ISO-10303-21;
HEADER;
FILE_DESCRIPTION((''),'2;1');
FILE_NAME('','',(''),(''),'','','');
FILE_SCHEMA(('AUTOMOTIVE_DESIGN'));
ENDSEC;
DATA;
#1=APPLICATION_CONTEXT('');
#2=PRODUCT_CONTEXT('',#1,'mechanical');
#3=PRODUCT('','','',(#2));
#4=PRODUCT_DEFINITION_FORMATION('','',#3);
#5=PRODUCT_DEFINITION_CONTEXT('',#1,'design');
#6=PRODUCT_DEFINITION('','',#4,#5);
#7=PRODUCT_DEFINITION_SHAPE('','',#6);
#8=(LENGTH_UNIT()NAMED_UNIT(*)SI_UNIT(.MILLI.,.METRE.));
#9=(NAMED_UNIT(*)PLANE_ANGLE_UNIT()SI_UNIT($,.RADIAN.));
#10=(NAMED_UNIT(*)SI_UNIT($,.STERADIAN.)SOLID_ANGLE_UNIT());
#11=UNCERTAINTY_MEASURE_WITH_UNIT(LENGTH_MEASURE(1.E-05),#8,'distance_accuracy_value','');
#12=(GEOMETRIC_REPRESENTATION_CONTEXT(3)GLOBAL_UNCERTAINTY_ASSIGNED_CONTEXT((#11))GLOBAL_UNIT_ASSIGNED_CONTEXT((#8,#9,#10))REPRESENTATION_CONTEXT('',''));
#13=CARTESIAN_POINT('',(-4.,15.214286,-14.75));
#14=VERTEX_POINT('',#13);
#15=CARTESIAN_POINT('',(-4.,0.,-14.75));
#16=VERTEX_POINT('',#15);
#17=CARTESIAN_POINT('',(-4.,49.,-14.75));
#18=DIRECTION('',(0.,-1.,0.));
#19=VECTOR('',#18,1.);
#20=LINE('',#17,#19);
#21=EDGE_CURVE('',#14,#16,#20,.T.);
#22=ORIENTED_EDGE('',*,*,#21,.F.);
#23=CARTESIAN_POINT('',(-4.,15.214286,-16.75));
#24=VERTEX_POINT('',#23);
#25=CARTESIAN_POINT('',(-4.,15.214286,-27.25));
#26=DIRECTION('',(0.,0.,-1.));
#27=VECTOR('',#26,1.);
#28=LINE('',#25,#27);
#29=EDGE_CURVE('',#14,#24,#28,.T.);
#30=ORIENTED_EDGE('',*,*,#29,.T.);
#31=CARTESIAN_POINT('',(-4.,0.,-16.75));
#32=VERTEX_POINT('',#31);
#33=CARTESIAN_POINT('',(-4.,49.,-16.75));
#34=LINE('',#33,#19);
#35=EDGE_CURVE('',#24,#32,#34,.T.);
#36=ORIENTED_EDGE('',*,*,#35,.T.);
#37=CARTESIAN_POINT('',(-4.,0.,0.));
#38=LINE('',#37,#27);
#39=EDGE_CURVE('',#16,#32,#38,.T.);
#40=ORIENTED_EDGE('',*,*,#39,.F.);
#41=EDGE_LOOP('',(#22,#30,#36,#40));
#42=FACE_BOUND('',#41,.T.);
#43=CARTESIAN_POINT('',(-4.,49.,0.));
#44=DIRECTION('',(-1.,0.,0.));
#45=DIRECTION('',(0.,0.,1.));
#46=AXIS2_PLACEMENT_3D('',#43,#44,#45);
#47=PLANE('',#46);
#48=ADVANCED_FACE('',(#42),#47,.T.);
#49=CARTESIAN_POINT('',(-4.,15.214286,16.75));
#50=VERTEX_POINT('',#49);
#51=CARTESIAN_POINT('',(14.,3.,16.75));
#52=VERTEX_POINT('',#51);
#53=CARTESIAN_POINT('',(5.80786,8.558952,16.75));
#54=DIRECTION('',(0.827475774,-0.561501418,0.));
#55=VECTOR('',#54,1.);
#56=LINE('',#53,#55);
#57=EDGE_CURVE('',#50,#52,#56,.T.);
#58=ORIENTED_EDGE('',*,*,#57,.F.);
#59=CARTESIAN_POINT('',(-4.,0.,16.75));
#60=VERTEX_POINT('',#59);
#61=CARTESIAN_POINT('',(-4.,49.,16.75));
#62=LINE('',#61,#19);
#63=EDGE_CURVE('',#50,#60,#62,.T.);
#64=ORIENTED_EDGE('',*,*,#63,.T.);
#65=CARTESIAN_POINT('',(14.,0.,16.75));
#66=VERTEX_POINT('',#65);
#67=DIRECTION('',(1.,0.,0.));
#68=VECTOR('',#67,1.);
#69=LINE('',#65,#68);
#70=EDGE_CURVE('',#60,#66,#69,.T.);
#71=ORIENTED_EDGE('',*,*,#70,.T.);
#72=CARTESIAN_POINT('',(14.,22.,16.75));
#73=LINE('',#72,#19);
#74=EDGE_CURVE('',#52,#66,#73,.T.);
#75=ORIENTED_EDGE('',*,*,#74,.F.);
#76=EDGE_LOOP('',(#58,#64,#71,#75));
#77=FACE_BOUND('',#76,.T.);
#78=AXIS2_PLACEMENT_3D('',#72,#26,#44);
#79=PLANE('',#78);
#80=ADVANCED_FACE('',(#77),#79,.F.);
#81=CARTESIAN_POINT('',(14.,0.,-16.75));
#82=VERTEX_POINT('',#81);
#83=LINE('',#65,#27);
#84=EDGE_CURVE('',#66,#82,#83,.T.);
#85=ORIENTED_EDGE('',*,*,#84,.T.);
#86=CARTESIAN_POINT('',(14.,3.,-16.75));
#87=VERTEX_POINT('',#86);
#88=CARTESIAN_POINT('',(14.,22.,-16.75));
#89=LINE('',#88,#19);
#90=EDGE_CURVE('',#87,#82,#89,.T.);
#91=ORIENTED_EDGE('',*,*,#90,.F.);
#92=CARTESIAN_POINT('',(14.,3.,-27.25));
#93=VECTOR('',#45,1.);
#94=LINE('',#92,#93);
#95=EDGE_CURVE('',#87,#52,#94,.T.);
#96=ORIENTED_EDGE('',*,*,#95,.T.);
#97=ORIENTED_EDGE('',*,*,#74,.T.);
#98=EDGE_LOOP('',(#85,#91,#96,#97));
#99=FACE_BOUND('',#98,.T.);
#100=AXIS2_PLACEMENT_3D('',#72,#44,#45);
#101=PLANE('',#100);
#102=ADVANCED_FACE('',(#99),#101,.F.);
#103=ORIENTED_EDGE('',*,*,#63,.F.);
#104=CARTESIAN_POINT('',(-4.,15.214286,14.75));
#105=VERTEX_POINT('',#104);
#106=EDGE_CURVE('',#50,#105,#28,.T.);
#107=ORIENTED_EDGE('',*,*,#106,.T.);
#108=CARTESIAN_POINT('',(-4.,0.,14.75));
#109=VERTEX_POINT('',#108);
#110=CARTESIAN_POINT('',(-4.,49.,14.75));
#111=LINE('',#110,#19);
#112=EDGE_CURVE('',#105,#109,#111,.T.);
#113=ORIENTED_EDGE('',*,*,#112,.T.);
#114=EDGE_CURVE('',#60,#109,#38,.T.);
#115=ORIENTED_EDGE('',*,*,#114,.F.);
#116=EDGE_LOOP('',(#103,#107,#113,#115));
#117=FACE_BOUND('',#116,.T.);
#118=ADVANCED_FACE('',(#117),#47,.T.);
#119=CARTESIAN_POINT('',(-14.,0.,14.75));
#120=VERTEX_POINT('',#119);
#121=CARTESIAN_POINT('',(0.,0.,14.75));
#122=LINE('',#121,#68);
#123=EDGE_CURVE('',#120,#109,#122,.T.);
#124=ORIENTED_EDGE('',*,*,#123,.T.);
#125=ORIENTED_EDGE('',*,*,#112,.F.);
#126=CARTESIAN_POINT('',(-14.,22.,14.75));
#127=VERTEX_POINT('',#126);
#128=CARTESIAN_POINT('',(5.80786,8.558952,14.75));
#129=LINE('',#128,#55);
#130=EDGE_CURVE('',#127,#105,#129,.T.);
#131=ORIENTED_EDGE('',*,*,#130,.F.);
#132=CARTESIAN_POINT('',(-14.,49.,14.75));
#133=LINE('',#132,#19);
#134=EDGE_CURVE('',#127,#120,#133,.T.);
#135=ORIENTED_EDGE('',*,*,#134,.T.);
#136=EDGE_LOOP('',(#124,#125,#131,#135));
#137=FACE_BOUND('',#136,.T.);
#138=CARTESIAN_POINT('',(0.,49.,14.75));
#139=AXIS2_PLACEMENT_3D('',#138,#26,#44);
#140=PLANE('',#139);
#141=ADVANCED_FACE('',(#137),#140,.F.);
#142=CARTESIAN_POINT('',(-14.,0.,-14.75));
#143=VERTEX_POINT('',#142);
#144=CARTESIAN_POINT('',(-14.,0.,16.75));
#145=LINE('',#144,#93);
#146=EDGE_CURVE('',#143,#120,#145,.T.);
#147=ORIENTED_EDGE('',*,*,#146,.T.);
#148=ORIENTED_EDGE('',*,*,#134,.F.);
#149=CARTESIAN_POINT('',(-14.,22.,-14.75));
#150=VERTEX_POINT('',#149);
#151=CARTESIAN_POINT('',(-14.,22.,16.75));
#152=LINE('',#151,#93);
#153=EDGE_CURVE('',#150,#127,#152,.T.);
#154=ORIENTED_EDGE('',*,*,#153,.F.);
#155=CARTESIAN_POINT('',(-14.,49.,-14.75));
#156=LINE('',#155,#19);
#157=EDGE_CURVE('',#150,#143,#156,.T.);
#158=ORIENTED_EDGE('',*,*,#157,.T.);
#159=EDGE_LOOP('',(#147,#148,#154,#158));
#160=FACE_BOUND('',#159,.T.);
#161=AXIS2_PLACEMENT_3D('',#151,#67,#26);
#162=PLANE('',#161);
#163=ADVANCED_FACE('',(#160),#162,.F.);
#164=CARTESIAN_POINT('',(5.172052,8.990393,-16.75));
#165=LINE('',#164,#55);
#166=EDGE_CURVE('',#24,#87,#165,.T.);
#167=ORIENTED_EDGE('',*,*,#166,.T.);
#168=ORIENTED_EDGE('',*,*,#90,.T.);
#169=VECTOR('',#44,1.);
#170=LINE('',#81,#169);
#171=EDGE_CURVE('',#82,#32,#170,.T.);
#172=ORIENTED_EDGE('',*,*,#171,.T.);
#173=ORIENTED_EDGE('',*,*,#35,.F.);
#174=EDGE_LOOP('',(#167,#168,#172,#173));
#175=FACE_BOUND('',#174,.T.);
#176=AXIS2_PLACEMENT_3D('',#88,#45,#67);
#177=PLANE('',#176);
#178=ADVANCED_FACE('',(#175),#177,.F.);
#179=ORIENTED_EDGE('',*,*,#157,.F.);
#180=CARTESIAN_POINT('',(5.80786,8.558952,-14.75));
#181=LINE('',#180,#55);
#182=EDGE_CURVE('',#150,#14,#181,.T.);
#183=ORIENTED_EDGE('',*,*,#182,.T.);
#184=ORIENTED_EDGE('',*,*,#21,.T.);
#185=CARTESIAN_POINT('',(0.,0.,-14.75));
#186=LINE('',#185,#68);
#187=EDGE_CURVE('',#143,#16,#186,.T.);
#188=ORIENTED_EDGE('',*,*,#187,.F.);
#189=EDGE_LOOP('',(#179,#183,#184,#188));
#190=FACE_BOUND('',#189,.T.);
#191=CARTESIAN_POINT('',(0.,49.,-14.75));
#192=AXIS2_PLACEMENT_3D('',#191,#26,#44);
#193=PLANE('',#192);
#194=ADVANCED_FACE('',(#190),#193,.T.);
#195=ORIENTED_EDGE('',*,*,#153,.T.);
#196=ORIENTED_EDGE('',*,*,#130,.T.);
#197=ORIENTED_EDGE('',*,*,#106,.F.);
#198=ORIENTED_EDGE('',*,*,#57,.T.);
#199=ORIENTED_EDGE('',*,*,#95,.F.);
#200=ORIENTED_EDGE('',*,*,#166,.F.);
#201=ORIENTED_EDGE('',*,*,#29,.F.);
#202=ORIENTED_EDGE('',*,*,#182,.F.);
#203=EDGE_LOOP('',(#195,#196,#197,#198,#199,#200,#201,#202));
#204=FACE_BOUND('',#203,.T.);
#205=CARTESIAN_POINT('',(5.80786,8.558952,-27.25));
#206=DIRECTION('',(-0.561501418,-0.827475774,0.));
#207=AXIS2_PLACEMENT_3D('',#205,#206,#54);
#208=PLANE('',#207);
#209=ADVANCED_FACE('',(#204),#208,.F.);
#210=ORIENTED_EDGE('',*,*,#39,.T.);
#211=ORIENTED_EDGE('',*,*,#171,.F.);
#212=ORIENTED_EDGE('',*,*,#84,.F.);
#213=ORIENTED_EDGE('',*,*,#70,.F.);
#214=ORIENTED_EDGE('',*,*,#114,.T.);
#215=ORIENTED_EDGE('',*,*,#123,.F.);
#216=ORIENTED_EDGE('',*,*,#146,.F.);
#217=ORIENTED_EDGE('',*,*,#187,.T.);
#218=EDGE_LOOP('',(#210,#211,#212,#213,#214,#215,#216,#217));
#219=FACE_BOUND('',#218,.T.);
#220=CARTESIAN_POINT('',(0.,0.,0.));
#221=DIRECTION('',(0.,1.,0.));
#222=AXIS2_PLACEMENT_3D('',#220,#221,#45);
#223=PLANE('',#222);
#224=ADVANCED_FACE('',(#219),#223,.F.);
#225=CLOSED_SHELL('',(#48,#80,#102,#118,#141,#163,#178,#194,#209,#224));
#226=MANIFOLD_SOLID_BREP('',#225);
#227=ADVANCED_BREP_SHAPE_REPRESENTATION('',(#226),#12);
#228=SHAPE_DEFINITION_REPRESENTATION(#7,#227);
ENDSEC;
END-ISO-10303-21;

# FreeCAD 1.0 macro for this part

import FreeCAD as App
import Part
import Sketcher
Q = App.Units.Quantity

doc = App.newDocument("Part")
body = doc.addObject("PartDesign::Body", "Body")

sketch1 = doc.addObject("Sketcher::SketchObject", "Sketch")
body.addObject(sketch1)
sketch1.AttachmentSupport = (doc.XZ_Plane, [""])
sketch1.MapMode = "FlatFace"
sketch1.addGeometry([
    Part.LineSegment(App.Vector(-14, -17, 0), App.Vector(-14, 17, 0)),
    Part.LineSegment(App.Vector(-14, 17, 0), App.Vector(14, 17, 0)),
    Part.LineSegment(App.Vector(14, 17, 0), App.Vector(14, -17, 0)),
    Part.LineSegment(App.Vector(14, -17, 0), App.Vector(-14, -17, 0)),
], False)
sketch1.addConstraint([
    Sketcher.Constraint("Coincident", 0, 2, 1, 1),
    Sketcher.Constraint("Coincident", 1, 2, 2, 1),
    Sketcher.Constraint("Coincident", 2, 2, 3, 1),
    Sketcher.Constraint("Coincident", 3, 2, 0, 1),
    Sketcher.Constraint("Vertical", 0),
    Sketcher.Constraint("Horizontal", 1),
    Sketcher.Constraint("Vertical", 2),
    Sketcher.Constraint("Horizontal", 3),
    Sketcher.Constraint("Symmetric", 0, 2, 2, 2, -1, 1),
    Sketcher.Constraint("DistanceX", 1, 1, 1, 2, Q("28 mm")),
    Sketcher.Constraint("DistanceY", 0, 1, 0, 2, Q("33.5 mm")),
])
pad1 = doc.addObject("PartDesign::Pad", "Pad")
body.addObject(pad1)
pad1.Profile = sketch1
pad1.Length = 22
pad1.Reversed = True

sketch2 = doc.addObject("Sketcher::SketchObject", "Sketch001")
body.addObject(sketch2)
sketch2.AttachmentSupport = (doc.XY_Plane, [""])
sketch2.MapMode = "FlatFace"
sketch2.AttachmentOffset = App.Placement(App.Vector(0, 0, 16.75), App.Rotation())
sketch2.addGeometry([
    Part.LineSegment(App.Vector(14, 22, 0), App.Vector(-14, 22, 0)),
    Part.LineSegment(App.Vector(-14, 22, 0), App.Vector(14, 3, 0)),
    Part.LineSegment(App.Vector(14, 3, 0), App.Vector(14, 22, 0)),
], False)
sketch2.addConstraint([
    Sketcher.Constraint("Coincident", 0, 2, 1, 1),
    Sketcher.Constraint("Coincident", 1, 2, 2, 1),
    Sketcher.Constraint("Coincident", 2, 2, 0, 1),
    Sketcher.Constraint("Horizontal", 0),
    Sketcher.Constraint("Vertical", 2),
    Sketcher.Constraint("DistanceX", 0, 2, 0, 1, Q("28 mm")),
    Sketcher.Constraint("DistanceY", 2, 1, 2, 2, Q("19 mm")),
    Sketcher.Constraint("DistanceX", 0, 2, -1, 1, Q("14 mm")),
    Sketcher.Constraint("DistanceY", -1, 1, 0, 2, Q("22 mm")),
])
pocket1 = doc.addObject("PartDesign::Pocket", "Pocket")
body.addObject(pocket1)
pocket1.Profile = sketch2
pocket1.Length = 44

sketch3 = doc.addObject("Sketcher::SketchObject", "Sketch002")
body.addObject(sketch3)
sketch3.AttachmentSupport = (doc.XZ_Plane, [""])
sketch3.MapMode = "FlatFace"
sketch3.addGeometry([
    Part.LineSegment(App.Vector(-14, 16.8, 0), App.Vector(-14, 14.8, 0)),
    Part.LineSegment(App.Vector(-14, 14.8, 0), App.Vector(-4, 14.8, 0)),
    Part.LineSegment(App.Vector(-4, 14.8, 0), App.Vector(-4, 16.8, 0)),
    Part.LineSegment(App.Vector(-4, 16.8, 0), App.Vector(-14, 16.8, 0)),
    Part.LineSegment(App.Vector(-14, -14.8, 0), App.Vector(-14, -16.8, 0)),
    Part.LineSegment(App.Vector(-14, -16.8, 0), App.Vector(-4, -16.8, 0)),
    Part.LineSegment(App.Vector(-4, -16.8, 0), App.Vector(-4, -14.8, 0)),
    Part.LineSegment(App.Vector(-4, -14.8, 0), App.Vector(-14, -14.8, 0)),
], False)
sketch3.addConstraint([
    Sketcher.Constraint("Coincident", 0, 2, 1, 1),
    Sketcher.Constraint("Coincident", 1, 2, 2, 1),
    Sketcher.Constraint("Coincident", 2, 2, 3, 1),
    Sketcher.Constraint("Coincident", 3, 2, 0, 1),
    Sketcher.Constraint("Coincident", 4, 2, 5, 1),
    Sketcher.Constraint("Coincident", 5, 2, 6, 1),
    Sketcher.Constraint("Coincident", 6, 2, 7, 1),
    Sketcher.Constraint("Coincident", 7, 2, 4, 1),
    Sketcher.Constraint("Vertical", 0),
    Sketcher.Constraint("Horizontal", 1),
    Sketcher.Constraint("Vertical", 2),
    Sketcher.Constraint("Horizontal", 3),
    Sketcher.Constraint("Vertical", 4),
    Sketcher.Constraint("Horizontal", 5),
    Sketcher.Constraint("Vertical", 6),
    Sketcher.Constraint("Horizontal", 7),
    Sketcher.Constraint("Symmetric", 3, 2, 4, 2, -1),
    Sketcher.Constraint("Symmetric", 1, 2, 6, 2, -1),
    Sketcher.Constraint("DistanceX", 1, 1, 1, 2, Q("10 mm")),
    Sketcher.Constraint("DistanceY", 0, 2, 0, 1, Q("2 mm")),
    Sketcher.Constraint("DistanceX", 0, 2, -1, 1, Q("14 mm")),
    Sketcher.Constraint("DistanceY", 4, 2, 0, 2, Q("31.5 mm")),
])
pocket2 = doc.addObject("PartDesign::Pocket", "Pocket001")
body.addObject(pocket2)
pocket2.Profile = sketch3
pocket2.Length = 49

doc.recompute()
